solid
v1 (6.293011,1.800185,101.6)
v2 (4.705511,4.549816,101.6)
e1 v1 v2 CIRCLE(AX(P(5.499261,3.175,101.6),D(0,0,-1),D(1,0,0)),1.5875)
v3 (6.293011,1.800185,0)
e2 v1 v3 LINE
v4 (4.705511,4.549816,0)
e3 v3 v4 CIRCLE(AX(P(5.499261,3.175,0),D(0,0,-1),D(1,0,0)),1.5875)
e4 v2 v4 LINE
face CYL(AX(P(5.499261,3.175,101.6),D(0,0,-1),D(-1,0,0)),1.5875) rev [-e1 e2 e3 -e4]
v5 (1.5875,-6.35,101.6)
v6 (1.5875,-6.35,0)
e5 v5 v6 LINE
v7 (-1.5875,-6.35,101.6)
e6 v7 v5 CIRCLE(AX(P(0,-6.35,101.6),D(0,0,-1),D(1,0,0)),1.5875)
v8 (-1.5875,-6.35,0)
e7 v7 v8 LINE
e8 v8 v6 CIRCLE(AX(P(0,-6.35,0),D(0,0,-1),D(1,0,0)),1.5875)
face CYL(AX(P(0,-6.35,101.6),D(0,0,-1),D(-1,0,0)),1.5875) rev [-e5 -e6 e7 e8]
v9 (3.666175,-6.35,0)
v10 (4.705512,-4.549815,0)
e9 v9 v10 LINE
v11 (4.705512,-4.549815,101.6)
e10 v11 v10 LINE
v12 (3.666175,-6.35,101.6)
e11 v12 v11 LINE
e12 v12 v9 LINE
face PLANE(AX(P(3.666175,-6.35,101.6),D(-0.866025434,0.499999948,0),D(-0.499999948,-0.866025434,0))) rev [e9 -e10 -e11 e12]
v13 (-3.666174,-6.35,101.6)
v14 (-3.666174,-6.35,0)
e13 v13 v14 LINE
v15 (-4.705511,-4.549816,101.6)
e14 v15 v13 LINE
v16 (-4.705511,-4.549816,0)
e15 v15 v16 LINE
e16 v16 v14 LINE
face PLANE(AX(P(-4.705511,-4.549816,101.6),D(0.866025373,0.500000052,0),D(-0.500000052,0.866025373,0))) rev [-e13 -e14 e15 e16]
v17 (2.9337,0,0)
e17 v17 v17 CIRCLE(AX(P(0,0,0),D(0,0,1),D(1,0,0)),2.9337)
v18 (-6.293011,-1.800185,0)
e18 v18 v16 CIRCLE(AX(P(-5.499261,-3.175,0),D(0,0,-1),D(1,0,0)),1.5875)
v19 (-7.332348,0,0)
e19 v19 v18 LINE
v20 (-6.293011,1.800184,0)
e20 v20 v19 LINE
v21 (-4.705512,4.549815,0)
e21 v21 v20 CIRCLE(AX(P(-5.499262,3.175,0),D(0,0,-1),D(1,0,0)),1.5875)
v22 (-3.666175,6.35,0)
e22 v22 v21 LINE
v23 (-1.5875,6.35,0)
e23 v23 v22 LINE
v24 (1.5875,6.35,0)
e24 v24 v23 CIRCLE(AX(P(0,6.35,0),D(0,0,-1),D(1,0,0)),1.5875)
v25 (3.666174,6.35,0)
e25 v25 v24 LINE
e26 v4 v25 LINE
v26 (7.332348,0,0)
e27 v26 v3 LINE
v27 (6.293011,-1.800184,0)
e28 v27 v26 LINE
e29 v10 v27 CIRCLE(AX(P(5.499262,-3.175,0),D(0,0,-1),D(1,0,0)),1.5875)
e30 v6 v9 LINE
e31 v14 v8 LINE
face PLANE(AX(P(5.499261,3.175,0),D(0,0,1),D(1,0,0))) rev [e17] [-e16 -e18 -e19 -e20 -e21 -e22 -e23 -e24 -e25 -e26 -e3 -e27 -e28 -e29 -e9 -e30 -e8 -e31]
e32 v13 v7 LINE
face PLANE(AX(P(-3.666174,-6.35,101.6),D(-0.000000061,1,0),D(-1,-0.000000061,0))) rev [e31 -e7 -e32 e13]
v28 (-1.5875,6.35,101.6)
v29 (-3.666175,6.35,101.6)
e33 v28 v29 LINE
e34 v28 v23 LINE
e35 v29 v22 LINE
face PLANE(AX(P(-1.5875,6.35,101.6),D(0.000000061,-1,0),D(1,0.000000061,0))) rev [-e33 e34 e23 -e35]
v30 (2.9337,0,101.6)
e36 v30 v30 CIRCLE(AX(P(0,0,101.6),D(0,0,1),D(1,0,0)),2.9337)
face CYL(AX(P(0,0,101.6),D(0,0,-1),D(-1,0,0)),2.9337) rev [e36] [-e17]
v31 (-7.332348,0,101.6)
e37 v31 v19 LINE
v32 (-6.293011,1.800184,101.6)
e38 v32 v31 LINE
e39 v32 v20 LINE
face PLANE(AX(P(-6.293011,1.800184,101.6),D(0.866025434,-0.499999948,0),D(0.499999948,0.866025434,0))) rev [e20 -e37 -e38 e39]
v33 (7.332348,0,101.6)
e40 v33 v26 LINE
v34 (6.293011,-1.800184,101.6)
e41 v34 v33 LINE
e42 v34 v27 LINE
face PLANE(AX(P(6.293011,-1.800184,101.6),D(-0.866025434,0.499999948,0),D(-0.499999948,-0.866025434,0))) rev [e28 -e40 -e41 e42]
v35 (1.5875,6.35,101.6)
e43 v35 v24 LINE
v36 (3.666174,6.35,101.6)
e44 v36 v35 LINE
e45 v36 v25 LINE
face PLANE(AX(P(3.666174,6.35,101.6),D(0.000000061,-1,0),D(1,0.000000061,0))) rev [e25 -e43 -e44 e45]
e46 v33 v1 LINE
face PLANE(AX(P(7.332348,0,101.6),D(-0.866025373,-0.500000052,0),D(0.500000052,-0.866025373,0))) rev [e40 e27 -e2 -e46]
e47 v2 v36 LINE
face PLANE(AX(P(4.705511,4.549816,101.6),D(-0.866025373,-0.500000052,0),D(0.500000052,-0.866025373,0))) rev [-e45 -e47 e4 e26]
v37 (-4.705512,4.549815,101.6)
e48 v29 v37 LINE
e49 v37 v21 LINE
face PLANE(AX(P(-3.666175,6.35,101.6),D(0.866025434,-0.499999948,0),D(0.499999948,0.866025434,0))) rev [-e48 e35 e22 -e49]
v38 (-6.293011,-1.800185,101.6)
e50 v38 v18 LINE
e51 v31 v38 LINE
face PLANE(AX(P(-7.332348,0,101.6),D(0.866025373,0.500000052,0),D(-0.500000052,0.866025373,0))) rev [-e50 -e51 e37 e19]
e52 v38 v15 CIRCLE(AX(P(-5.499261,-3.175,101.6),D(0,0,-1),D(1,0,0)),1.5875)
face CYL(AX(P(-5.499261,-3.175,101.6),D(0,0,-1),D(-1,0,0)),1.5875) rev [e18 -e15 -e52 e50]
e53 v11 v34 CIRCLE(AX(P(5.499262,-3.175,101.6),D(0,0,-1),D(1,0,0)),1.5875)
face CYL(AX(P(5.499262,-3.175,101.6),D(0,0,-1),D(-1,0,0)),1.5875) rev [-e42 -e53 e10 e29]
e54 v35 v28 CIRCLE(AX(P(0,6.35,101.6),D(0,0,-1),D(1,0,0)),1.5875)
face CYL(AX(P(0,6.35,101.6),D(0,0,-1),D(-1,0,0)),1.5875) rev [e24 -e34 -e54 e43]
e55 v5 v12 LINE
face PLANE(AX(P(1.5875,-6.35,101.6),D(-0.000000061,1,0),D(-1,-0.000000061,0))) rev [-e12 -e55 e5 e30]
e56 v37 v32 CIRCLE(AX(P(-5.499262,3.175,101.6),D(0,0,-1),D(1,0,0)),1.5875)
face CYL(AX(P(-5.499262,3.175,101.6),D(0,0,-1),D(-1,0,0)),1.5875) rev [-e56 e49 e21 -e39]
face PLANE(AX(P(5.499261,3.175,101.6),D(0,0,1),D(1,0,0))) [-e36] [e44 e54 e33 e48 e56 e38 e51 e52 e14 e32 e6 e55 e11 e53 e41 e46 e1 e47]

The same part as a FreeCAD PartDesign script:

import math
import FreeCAD as App
import Part
import Sketcher
from FreeCAD import Vector
Q = App.Units.Quantity

doc = App.newDocument("Part")
body = doc.addObject("PartDesign::Body", "Body")

sketch1 = body.newObject("Sketcher::SketchObject", "Sketch")
sketch1.AttachmentSupport = (doc.getObject("XY_Plane"), [""])
sketch1.MapMode = "FlatFace"
sketch1.addGeometry([
    Part.LineSegment(Vector(-1.6, 6.3, 0), Vector(-3.7, 6.3, 0)),
    Part.LineSegment(Vector(-3.7, 6.3, 0), Vector(-4.7, 4.5, 0)),
    Part.ArcOfCircle(Part.Circle(Vector(-5.5, 3.2, 0), Vector(0, 0, 1), 1.6), math.radians(-120), math.radians(60)),
    Part.LineSegment(Vector(-6.3, 1.8, 0), Vector(-7.3, 0, 0)),
    Part.LineSegment(Vector(-7.3, 0, 0), Vector(-6.3, -1.8, 0)),
    Part.ArcOfCircle(Part.Circle(Vector(-5.5, -3.2, 0), Vector(0, 0, 1), 1.6), math.radians(-60), math.radians(120)),
    Part.LineSegment(Vector(-4.7, -4.5, 0), Vector(-3.7, -6.4, 0)),
    Part.LineSegment(Vector(-3.7, -6.4, 0), Vector(-1.6, -6.4, 0)),
    Part.ArcOfCircle(Part.Circle(Vector(0, -6.3, 0), Vector(0, 0, 1), 1.6), math.radians(0), math.radians(180)),
    Part.LineSegment(Vector(1.6, -6.3, 0), Vector(3.7, -6.3, 0)),
    Part.LineSegment(Vector(3.7, -6.3, 0), Vector(4.7, -4.5, 0)),
    Part.ArcOfCircle(Part.Circle(Vector(5.5, -3.2, 0), Vector(0, 0, 1), 1.6), math.radians(60), math.radians(240)),
    Part.LineSegment(Vector(6.3, -1.8, 0), Vector(7.3, 0, 0)),
    Part.LineSegment(Vector(7.3, 0, 0), Vector(6.3, 1.8, 0)),
    Part.ArcOfCircle(Part.Circle(Vector(5.5, 3.2, 0), Vector(0, 0, 1), 1.6), math.radians(120), math.radians(300)),
    Part.LineSegment(Vector(4.7, 4.5, 0), Vector(3.7, 6.4, 0)),
    Part.LineSegment(Vector(3.7, 6.4, 0), Vector(1.6, 6.4, 0)),
    Part.ArcOfCircle(Part.Circle(Vector(0, 6.3, 0), Vector(0, 0, 1), 1.6), math.radians(-180), math.radians(0)),
    Part.Circle(Vector(0, 0, 0), Vector(0, 0, 1), 2.9),
], False)
sketch1.addConstraint([
    Sketcher.Constraint("Coincident", 0, 2, 1, 1),
    Sketcher.Constraint("Coincident", 1, 2, 2, 2),
    Sketcher.Constraint("Coincident", 2, 1, 3, 1),
    Sketcher.Constraint("Coincident", 3, 2, 4, 1),
    Sketcher.Constraint("Coincident", 4, 2, 5, 2),
    Sketcher.Constraint("Coincident", 5, 1, 6, 1),
    Sketcher.Constraint("Coincident", 6, 2, 7, 1),
    Sketcher.Constraint("Coincident", 7, 2, 8, 2),
    Sketcher.Constraint("Coincident", 8, 1, 9, 1),
    Sketcher.Constraint("Coincident", 9, 2, 10, 1),
    Sketcher.Constraint("Coincident", 10, 2, 11, 2),
    Sketcher.Constraint("Coincident", 11, 1, 12, 1),
    Sketcher.Constraint("Coincident", 12, 2, 13, 1),
    Sketcher.Constraint("Coincident", 13, 2, 14, 2),
    Sketcher.Constraint("Coincident", 14, 1, 15, 1),
    Sketcher.Constraint("Coincident", 15, 2, 16, 1),
    Sketcher.Constraint("Coincident", 16, 2, 17, 2),
    Sketcher.Constraint("Coincident", 17, 1, 0, 1),
    Sketcher.Constraint("Horizontal", 0),
    Sketcher.Constraint("Horizontal", 7),
    Sketcher.Constraint("Horizontal", 9),
    Sketcher.Constraint("Horizontal", 16),
    Sketcher.Constraint("Coincident", 18, 3, -1, 1),
    Sketcher.Constraint("Equal", 2, 5),
    Sketcher.Constraint("Equal", 5, 8),
    Sketcher.Constraint("Equal", 8, 11),
    Sketcher.Constraint("Equal", 11, 14),
    Sketcher.Constraint("Equal", 14, 17),
    Sketcher.Constraint("Symmetric", 2, 3, 11, 3, -1, 1),
    Sketcher.Constraint("Symmetric", 5, 3, 14, 3, -1, 1),
    Sketcher.Constraint("Symmetric", 8, 3, 17, 3, -1, 1),
    Sketcher.Constraint("Symmetric", 0, 2, 9, 2, -1, 1),
    Sketcher.Constraint("Symmetric", 3, 2, 12, 2, -1, 1),
    Sketcher.Constraint("Symmetric", 6, 2, 15, 2, -1, 1),
    Sketcher.Constraint("Symmetric", 5, 3, 11, 3, -2),
    Sketcher.Constraint("Symmetric", 7, 2, 8, 1, -2),
    Sketcher.Constraint("PointOnObject", 3, 2, -1),
    Sketcher.Constraint("Parallel", 1, 3),
    Sketcher.Constraint("Parallel", 4, 6),
    Sketcher.Constraint("Parallel", 3, 10),
    Sketcher.Constraint("Parallel", 10, 12),
    Sketcher.Constraint("Parallel", 6, 13),
    Sketcher.Constraint("Parallel", 13, 15),
    Sketcher.Constraint("Horizontal", 17, 3, 0, 2),
    Sketcher.Constraint("Horizontal", 5, 1, 10, 2),
    Sketcher.Constraint("Horizontal", 4, 2, 11, 1),
    Sketcher.Constraint("Equal", 1, 3),
    Sketcher.Constraint("Diameter", 18, Q("0.231 in")),
    Sketcher.Constraint("Angle", 1, Q("-119.999997 deg")),
    Sketcher.Constraint("Radius", 2, Q("0.0625 in")),
    Sketcher.Constraint("DistanceY", 8, 3, 17, 3, Q("0.5 in")),
    Sketcher.Constraint("DistanceY", 5, 3, 2, 3, Q("0.25 in")),
    Sketcher.Constraint("DistanceX", 2, 3, 1, 2, Q("0.03125 in")),
    Sketcher.Constraint("DistanceX", 0, 2, 0, 1, Q("2.078674 mm")),
])
pad1 = body.newObject("PartDesign::Pad", "Pad")
pad1.Profile = sketch1
pad1.Length = Q("4 in")

doc.recompute()
